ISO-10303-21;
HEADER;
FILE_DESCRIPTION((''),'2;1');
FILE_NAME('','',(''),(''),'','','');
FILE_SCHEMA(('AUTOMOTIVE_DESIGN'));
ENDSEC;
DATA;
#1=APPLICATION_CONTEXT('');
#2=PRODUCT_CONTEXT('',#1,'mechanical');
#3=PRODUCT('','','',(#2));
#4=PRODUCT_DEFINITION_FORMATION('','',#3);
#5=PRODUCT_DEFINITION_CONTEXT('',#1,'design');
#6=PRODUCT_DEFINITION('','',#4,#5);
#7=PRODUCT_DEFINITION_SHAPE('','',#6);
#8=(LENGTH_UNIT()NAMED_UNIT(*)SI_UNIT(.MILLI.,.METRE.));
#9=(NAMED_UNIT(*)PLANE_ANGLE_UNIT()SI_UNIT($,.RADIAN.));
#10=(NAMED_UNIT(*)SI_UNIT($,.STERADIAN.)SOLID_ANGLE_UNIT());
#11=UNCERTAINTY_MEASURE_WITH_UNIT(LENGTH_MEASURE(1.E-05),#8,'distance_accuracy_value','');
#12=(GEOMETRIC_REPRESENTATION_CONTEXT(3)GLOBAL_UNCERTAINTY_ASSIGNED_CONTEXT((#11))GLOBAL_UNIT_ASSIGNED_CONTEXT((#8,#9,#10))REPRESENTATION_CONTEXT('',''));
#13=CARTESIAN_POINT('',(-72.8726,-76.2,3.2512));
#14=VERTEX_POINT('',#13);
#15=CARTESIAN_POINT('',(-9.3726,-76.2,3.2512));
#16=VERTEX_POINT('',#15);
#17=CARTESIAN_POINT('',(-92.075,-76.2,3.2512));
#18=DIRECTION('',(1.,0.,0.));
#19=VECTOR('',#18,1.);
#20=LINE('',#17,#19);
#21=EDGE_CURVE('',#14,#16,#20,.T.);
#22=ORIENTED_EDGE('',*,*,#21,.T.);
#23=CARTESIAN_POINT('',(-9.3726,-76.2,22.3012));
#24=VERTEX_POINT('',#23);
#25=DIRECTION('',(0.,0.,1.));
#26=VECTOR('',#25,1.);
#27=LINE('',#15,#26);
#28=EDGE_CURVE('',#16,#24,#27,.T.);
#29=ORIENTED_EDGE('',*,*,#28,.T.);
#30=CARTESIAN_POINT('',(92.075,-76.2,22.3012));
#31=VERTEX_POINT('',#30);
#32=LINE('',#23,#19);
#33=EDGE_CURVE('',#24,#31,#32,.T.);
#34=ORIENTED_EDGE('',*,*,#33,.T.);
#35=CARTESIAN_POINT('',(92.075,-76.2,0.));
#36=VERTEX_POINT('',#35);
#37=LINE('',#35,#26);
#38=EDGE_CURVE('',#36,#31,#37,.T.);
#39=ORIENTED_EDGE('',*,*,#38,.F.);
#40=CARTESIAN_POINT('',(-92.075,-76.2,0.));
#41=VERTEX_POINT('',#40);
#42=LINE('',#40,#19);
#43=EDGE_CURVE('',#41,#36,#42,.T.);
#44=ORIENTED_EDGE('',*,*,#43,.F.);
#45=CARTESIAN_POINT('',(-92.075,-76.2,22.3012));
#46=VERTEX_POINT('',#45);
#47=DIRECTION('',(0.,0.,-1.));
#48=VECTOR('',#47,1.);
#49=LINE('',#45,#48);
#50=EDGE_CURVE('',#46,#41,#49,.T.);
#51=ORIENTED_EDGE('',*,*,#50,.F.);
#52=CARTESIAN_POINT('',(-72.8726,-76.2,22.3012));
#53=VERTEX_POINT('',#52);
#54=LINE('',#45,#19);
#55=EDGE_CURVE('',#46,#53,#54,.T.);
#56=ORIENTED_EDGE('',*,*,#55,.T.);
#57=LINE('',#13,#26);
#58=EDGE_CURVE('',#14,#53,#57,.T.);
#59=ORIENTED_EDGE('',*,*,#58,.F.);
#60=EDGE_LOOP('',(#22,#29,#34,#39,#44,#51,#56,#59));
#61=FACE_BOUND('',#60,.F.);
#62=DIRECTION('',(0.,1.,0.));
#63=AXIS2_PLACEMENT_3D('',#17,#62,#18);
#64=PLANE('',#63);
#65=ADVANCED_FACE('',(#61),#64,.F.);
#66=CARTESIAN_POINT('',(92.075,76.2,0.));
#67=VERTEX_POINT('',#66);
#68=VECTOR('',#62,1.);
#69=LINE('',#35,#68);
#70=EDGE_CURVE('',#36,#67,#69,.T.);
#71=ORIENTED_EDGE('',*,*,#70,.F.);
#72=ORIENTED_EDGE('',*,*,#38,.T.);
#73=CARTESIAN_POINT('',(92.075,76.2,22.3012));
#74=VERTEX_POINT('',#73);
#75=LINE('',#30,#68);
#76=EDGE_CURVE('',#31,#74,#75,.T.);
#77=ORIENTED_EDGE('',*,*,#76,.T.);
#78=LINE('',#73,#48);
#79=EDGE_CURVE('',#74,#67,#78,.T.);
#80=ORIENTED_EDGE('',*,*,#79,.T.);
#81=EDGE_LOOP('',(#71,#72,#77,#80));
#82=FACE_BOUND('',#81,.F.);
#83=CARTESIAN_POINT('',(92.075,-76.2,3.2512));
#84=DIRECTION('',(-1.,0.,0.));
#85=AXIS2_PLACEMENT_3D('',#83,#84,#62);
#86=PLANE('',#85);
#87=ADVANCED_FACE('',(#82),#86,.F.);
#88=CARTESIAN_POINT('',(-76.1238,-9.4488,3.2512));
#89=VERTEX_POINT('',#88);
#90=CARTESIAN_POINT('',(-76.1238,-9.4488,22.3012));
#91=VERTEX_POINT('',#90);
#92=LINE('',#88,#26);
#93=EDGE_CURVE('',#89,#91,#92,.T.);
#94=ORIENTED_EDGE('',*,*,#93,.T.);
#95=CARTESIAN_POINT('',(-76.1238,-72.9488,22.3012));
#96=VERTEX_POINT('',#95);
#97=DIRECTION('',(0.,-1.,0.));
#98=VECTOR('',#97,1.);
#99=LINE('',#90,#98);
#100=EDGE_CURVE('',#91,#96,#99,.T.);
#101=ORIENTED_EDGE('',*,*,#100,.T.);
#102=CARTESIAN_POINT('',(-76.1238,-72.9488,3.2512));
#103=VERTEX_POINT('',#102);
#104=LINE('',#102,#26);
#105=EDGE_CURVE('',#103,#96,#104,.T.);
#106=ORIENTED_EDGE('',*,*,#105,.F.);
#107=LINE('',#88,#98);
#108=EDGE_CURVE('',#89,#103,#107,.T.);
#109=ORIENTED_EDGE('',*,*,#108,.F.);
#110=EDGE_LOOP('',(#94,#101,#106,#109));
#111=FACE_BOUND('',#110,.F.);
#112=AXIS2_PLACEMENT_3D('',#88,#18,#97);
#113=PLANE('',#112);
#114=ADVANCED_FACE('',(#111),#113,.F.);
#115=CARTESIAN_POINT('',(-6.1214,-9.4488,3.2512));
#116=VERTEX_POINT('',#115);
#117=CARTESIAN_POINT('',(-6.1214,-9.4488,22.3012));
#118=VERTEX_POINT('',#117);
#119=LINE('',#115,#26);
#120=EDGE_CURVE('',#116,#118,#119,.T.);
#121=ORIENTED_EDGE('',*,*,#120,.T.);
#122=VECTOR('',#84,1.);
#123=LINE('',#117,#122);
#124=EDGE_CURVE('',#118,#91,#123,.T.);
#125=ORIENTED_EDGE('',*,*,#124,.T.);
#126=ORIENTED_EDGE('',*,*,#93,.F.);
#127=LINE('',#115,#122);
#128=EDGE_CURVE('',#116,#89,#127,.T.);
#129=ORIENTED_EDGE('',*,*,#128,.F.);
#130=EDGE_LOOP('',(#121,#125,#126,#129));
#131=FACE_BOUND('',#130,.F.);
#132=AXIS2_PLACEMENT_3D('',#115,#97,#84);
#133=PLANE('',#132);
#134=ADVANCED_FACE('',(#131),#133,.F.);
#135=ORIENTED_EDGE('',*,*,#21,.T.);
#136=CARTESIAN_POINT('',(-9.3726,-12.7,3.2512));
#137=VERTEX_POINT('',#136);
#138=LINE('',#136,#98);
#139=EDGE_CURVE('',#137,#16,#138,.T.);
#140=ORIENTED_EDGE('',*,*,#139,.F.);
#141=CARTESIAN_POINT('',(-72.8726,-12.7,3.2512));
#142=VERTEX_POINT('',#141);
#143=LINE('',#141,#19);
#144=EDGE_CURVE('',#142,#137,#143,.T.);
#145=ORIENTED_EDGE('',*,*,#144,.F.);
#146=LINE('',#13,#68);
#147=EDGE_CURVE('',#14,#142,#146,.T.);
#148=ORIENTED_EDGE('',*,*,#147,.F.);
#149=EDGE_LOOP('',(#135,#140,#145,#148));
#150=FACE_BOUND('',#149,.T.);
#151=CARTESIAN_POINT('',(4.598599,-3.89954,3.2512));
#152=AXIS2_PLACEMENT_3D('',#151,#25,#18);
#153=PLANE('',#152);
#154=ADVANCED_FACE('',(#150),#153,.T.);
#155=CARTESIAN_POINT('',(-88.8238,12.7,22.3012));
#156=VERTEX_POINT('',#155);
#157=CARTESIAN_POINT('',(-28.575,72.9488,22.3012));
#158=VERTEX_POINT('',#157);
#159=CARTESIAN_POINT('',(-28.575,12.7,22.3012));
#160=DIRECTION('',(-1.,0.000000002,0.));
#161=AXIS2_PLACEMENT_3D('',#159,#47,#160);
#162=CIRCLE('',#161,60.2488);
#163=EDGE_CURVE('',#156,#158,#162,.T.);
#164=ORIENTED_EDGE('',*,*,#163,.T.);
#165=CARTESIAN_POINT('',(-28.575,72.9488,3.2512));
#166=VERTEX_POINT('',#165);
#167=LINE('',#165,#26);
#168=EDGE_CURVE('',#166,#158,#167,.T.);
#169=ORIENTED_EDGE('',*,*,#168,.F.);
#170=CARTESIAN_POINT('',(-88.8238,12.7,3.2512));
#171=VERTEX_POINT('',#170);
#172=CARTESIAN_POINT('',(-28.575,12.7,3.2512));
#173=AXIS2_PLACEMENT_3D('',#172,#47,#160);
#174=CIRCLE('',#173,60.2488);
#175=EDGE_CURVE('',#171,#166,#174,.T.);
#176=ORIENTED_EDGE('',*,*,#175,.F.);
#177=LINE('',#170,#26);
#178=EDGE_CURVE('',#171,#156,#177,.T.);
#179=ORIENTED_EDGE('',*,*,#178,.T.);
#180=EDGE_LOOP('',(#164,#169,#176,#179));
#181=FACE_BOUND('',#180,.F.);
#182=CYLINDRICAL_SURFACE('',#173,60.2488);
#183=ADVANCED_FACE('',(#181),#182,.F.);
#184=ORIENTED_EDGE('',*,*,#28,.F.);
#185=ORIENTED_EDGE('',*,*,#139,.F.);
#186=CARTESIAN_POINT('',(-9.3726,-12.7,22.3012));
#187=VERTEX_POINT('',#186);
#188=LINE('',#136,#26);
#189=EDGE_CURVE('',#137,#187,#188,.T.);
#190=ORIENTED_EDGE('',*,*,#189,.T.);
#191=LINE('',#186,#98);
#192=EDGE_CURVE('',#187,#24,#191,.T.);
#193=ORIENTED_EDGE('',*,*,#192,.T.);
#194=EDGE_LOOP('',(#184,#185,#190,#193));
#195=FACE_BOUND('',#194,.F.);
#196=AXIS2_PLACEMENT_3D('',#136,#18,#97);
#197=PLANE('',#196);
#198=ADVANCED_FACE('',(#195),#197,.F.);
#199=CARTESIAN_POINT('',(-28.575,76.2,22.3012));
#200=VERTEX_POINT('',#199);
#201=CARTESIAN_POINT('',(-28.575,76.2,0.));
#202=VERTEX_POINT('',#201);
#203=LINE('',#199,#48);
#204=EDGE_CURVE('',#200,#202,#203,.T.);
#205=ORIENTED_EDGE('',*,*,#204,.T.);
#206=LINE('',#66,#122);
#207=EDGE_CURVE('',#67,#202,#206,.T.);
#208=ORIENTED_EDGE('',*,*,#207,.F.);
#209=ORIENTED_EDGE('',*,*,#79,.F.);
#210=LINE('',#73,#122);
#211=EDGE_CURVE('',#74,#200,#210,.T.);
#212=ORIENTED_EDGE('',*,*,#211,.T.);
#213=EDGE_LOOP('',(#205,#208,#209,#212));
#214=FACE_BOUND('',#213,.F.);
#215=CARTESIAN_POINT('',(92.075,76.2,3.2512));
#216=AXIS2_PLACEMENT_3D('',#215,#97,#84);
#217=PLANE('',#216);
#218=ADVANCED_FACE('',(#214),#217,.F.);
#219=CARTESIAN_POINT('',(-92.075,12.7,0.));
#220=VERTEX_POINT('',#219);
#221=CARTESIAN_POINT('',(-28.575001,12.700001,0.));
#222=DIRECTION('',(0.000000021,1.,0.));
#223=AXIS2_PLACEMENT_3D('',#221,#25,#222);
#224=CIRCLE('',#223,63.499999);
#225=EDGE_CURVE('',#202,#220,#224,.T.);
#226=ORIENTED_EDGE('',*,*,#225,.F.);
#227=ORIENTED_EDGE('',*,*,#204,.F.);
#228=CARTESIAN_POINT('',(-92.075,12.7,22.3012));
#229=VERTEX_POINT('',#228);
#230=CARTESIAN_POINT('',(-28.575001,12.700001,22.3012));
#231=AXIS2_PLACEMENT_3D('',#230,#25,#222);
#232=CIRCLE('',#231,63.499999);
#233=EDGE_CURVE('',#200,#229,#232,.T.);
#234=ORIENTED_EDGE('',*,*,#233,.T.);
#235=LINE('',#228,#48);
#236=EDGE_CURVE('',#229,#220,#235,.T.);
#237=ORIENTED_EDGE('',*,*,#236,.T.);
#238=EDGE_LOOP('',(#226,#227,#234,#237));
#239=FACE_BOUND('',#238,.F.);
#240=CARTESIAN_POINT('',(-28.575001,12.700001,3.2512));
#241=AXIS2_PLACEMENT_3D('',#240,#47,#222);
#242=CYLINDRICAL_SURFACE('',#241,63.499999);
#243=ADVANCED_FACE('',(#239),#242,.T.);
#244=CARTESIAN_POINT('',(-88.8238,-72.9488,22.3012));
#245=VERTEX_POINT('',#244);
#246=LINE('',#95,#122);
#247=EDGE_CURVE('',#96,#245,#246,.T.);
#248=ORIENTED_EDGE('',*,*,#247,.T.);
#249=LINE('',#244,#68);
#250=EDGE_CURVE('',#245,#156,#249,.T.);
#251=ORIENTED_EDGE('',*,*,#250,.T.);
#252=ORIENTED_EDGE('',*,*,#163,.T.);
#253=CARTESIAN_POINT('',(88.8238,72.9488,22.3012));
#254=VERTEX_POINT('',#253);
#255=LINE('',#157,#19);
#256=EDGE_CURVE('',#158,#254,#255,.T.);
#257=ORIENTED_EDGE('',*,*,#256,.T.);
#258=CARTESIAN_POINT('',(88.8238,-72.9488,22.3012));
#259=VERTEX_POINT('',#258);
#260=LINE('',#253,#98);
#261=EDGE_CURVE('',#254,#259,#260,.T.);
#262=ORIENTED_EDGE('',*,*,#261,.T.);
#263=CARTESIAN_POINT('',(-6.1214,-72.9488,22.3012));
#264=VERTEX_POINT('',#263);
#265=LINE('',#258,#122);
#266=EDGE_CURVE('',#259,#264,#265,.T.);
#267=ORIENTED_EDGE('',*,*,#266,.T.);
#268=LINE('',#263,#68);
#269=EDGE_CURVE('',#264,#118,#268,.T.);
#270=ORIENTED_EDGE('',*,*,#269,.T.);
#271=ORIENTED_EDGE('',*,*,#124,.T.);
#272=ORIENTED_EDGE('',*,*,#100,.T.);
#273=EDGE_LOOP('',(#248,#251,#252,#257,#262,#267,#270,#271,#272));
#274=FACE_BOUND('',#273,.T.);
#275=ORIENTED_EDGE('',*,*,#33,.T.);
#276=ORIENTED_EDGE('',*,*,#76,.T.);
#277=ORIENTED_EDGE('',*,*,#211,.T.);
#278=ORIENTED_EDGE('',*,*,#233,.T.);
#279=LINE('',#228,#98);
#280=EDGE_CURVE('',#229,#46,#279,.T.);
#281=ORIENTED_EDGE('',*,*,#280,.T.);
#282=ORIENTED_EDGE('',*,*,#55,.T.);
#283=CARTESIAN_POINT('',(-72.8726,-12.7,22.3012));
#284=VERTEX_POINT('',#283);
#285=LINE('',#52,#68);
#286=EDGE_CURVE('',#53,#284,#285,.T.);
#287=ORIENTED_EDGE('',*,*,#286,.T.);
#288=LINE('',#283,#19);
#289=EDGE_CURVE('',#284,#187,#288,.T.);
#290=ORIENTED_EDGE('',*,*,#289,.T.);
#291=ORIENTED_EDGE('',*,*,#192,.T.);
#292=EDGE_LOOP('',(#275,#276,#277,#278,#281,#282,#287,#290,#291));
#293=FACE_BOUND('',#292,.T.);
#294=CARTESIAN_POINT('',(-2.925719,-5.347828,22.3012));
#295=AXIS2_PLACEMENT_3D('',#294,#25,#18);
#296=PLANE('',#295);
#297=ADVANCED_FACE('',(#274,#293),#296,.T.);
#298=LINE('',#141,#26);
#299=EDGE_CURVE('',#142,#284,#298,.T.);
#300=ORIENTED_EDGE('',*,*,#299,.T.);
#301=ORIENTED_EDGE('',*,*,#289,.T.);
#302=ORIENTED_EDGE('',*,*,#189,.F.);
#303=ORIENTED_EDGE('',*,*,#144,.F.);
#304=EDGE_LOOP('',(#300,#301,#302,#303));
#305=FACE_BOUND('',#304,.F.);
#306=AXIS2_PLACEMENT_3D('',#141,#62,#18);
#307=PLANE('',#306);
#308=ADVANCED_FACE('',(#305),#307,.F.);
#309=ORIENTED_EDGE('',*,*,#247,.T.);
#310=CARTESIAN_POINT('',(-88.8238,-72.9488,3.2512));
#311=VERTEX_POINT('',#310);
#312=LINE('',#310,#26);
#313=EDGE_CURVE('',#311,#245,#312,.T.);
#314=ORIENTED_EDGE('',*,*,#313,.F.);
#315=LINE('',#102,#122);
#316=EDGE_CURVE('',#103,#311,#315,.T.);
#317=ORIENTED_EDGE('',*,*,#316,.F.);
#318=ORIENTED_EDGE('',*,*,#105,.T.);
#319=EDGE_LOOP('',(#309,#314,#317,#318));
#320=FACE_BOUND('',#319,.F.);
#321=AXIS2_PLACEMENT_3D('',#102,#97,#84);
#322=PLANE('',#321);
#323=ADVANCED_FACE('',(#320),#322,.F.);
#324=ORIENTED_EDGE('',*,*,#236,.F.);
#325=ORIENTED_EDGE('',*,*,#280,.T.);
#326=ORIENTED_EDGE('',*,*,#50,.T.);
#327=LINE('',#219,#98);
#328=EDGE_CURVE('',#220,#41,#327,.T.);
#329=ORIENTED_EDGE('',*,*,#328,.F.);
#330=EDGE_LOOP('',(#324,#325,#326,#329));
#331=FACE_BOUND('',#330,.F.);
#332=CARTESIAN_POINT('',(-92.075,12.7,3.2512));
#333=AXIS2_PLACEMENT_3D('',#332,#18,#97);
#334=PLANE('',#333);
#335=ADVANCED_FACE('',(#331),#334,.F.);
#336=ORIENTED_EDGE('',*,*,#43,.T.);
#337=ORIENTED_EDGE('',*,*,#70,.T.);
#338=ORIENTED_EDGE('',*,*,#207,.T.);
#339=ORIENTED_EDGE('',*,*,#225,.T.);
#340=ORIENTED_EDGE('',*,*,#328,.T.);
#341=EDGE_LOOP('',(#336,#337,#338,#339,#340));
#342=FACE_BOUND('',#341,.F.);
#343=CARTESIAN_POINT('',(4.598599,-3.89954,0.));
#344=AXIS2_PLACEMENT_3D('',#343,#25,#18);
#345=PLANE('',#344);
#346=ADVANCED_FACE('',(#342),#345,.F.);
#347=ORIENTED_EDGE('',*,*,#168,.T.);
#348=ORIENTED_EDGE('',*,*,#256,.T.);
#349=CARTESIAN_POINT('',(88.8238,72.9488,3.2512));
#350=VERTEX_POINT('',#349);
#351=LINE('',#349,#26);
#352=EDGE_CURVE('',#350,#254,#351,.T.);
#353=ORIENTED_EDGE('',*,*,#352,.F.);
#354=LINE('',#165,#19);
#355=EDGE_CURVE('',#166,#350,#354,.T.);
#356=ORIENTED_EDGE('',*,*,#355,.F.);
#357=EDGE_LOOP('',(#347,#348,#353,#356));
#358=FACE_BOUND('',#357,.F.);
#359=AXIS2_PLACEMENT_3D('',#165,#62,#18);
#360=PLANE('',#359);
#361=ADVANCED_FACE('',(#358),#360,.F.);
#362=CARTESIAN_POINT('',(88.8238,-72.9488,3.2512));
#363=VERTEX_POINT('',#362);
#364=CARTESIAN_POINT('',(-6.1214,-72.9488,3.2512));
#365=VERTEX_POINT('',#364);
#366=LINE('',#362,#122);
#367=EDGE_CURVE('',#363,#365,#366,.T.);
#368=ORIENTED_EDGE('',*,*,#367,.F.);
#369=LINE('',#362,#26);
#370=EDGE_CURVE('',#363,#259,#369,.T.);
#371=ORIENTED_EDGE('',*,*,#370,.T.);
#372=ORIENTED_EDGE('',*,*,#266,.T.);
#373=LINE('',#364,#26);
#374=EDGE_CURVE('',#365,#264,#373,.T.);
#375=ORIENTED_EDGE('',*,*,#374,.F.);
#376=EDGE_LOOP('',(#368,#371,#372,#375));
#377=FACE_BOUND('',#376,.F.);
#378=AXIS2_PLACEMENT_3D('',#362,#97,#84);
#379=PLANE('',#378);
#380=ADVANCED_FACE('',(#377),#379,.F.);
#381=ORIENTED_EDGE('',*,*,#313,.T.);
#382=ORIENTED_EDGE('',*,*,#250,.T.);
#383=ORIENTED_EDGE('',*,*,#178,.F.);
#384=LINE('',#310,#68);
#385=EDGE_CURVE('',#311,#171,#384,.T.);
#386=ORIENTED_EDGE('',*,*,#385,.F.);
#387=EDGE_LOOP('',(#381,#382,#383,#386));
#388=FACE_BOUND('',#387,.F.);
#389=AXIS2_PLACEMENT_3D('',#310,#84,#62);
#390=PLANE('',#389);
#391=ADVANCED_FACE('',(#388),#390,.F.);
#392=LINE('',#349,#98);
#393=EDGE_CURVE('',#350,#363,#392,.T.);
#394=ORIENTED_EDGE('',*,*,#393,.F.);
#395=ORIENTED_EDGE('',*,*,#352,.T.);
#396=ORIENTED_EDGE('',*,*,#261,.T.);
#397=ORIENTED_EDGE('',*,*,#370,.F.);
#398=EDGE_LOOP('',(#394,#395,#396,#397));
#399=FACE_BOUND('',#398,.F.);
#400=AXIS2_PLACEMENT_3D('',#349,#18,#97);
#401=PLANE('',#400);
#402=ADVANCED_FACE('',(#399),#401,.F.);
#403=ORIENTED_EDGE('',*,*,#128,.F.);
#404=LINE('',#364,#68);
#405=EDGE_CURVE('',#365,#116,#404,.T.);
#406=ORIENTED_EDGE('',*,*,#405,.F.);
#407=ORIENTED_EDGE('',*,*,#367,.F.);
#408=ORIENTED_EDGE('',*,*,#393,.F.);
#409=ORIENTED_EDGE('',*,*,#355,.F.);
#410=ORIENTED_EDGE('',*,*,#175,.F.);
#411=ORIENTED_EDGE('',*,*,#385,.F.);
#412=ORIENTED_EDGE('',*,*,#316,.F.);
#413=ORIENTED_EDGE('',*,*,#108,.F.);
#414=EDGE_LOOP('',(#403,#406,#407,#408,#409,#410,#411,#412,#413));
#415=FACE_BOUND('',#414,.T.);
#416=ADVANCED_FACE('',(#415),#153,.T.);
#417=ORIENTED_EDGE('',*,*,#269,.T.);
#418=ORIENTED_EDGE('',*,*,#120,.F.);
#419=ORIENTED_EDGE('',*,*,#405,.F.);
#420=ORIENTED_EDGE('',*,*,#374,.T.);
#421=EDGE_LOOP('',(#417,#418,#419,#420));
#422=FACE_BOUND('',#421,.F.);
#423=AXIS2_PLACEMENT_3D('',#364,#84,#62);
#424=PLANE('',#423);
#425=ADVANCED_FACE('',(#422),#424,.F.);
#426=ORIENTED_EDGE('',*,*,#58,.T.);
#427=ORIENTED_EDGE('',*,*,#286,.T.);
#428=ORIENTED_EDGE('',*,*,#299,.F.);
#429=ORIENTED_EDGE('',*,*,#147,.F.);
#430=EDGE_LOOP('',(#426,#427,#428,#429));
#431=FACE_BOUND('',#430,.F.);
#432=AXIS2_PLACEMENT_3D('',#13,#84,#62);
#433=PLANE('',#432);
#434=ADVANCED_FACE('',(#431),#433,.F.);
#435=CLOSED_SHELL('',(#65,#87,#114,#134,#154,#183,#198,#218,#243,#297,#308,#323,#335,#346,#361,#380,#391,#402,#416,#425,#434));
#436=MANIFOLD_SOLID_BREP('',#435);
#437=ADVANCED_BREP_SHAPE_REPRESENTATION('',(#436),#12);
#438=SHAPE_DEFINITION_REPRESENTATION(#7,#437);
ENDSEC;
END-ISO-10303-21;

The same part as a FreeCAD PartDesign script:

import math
import FreeCAD as App
import Part
import Sketcher
from FreeCAD import Vector
Q = App.Units.Quantity

doc = App.newDocument("Part")
body = doc.addObject("PartDesign::Body", "Body")

# Sketch on XY plane
sketch1 = body.newObject("Sketcher::SketchObject", "Sketch")
sketch1.AttachmentSupport = (doc.getObject("XY_Plane"), [""])
sketch1.MapMode = "FlatFace"
sketch1.addGeometry([
    Part.LineSegment(Vector(92, 76, 0), Vector(-29, 76, 0)),  # 0
    Part.ArcOfCircle(Part.Circle(Vector(-29, 13, 0), Vector(0, 0, 1), 63), math.radians(90), math.radians(180)),  # 1
    Part.LineSegment(Vector(-92, 13, 0), Vector(-92, -76, 0)),  # 2
    Part.LineSegment(Vector(-92, -76, 0), Vector(92, -76, 0)),  # 3
    Part.LineSegment(Vector(92, -76, 0), Vector(92, 76, 0)),  # 4
], False)
sketch1.addConstraint([
    Sketcher.Constraint("Tangent", 0, 2, 1, 1),
    Sketcher.Constraint("Tangent", 1, 2, 2, 1),
    Sketcher.Constraint("Coincident", 2, 2, 3, 1),
    Sketcher.Constraint("Coincident", 3, 2, 4, 1),
    Sketcher.Constraint("Coincident", 4, 2, 0, 1),
    Sketcher.Constraint("Horizontal", 0),
    Sketcher.Constraint("Vertical", 2),
    Sketcher.Constraint("Horizontal", 3),
    Sketcher.Constraint("Vertical", 4),
    Sketcher.Constraint("Symmetric", 2, 2, 4, 2, -1, 1),
    Sketcher.Constraint("Radius", 1, Q("2.4999999 in")),
    Sketcher.Constraint("DistanceY", 4, 1, 4, 2, Q("6 in")),
    Sketcher.Constraint("DistanceX", 0, 2, 0, 1, Q("4.75 in")),
])
pad1 = body.newObject("PartDesign::Pad", "Pad")
pad1.Profile = sketch1
pad1.Length = Q("0.128 in")

# Sketch on XY plane
sketch2 = body.newObject("Sketcher::SketchObject", "Sketch001")
sketch2.AttachmentSupport = (doc.getObject("XY_Plane"), [""])
sketch2.MapMode = "FlatFace"
sketch2.AttachmentOffset = App.Placement(Vector(0, 0, 0.128 * 25.4), App.Rotation())
sketch2.addGeometry([
    Part.LineSegment(Vector(-73, -76, 0), Vector(-73, -13, 0)),  # 0
    Part.LineSegment(Vector(-73, -13, 0), Vector(-9, -13, 0)),  # 1
    Part.LineSegment(Vector(-9, -13, 0), Vector(-9, -76, 0)),  # 2
    Part.LineSegment(Vector(-9, -76, 0), Vector(92, -76, 0)),  # 3
    Part.LineSegment(Vector(92, -76, 0), Vector(92, 76, 0)),  # 4
    Part.LineSegment(Vector(92, 76, 0), Vector(-29, 76, 0)),  # 5
    Part.ArcOfCircle(Part.Circle(Vector(-29, 13, 0), Vector(0, 0, 1), 63), math.radians(90), math.radians(180)),  # 6
    Part.LineSegment(Vector(-92, 13, 0), Vector(-92, -76, 0)),  # 7
    Part.LineSegment(Vector(-92, -76, 0), Vector(-73, -76, 0)),  # 8
    Part.ArcOfCircle(Part.Circle(Vector(-29, 13, 0), Vector(0, 0, 1), 60), math.radians(90), math.radians(180)),  # 9
    Part.LineSegment(Vector(-29, 73, 0), Vector(89, 73, 0)),  # 10
    Part.LineSegment(Vector(89, 73, 0), Vector(89, -73, 0)),  # 11
    Part.LineSegment(Vector(89, -73, 0), Vector(-6, -73, 0)),  # 12
    Part.LineSegment(Vector(-6, -73, 0), Vector(-6, -9, 0)),  # 13
    Part.LineSegment(Vector(-6, -9, 0), Vector(-76, -9, 0)),  # 14
    Part.LineSegment(Vector(-76, -9, 0), Vector(-76, -73, 0)),  # 15
    Part.LineSegment(Vector(-76, -73, 0), Vector(-89, -73, 0)),  # 16
    Part.LineSegment(Vector(-89, -73, 0), Vector(-89, 13, 0)),  # 17
], False)
sketch2.addConstraint([
    Sketcher.Constraint("Coincident", 0, 2, 1, 1),
    Sketcher.Constraint("Coincident", 1, 2, 2, 1),
    Sketcher.Constraint("Coincident", 2, 2, 3, 1),
    Sketcher.Constraint("Coincident", 3, 2, 4, 1),
    Sketcher.Constraint("Coincident", 4, 2, 5, 1),
    Sketcher.Constraint("Tangent", 5, 2, 6, 1),
    Sketcher.Constraint("Tangent", 6, 2, 7, 1),
    Sketcher.Constraint("Coincident", 7, 2, 8, 1),
    Sketcher.Constraint("Coincident", 8, 2, 0, 1),
    Sketcher.Constraint("Tangent", 9, 1, 10, 1),
    Sketcher.Constraint("Coincident", 10, 2, 11, 1),
    Sketcher.Constraint("Coincident", 11, 2, 12, 1),
    Sketcher.Constraint("Coincident", 12, 2, 13, 1),
    Sketcher.Constraint("Coincident", 13, 2, 14, 1),
    Sketcher.Constraint("Coincident", 14, 2, 15, 1),
    Sketcher.Constraint("Coincident", 15, 2, 16, 1),
    Sketcher.Constraint("Coincident", 16, 2, 17, 1),
    Sketcher.Constraint("Tangent", 17, 2, 9, 2),
    Sketcher.Constraint("Vertical", 0),
    Sketcher.Constraint("Horizontal", 1),
    Sketcher.Constraint("Vertical", 2),
    Sketcher.Constraint("Horizontal", 3),
    Sketcher.Constraint("Vertical", 4),
    Sketcher.Constraint("Horizontal", 5),
    Sketcher.Constraint("Vertical", 7),
    Sketcher.Constraint("Horizontal", 8),
    Sketcher.Constraint("Horizontal", 10),
    Sketcher.Constraint("Vertical", 11),
    Sketcher.Constraint("Horizontal", 12),
    Sketcher.Constraint("Vertical", 13),
    Sketcher.Constraint("Horizontal", 14),
    Sketcher.Constraint("Vertical", 15),
    Sketcher.Constraint("Horizontal", 16),
    Sketcher.Constraint("Vertical", 17),
    Sketcher.Constraint("Coincident", 9, 3, 6, 3),
    Sketcher.Constraint("Symmetric", 4, 2, 7, 2, -1, 1),
    Sketcher.Constraint("Symmetric", 10, 2, 16, 2, -1, 1),
    Sketcher.Constraint("Horizontal", 3, 2, 7, 2),
    Sketcher.Constraint("Horizontal", 12, 2, 15, 2),
    Sketcher.Constraint("Equal", 1, 0),
    Sketcher.Constraint("Equal", 2, 13),
    Sketcher.Constraint("Radius", 6, Q("2.4999999 in")),
    Sketcher.Constraint("DistanceY", 4, 1, 4, 2, Q("6 in")),
    Sketcher.Constraint("DistanceX", 1, 1, 1, 2, Q("2.5 in")),
    Sketcher.Constraint("DistanceX", 16, 2, 16, 1, Q("0.5 in")),
    Sketcher.Constraint("Radius", 9, Q("2.372 in")),
    Sketcher.Constraint("DistanceX", 5, 2, 5, 1, Q("4.75 in")),
    Sketcher.Constraint("DistanceX", 3, 1, 3, 2, Q("3.994 in")),
    Sketcher.Constraint("DistanceX", 12, 2, 12, 1, Q("3.738 in")),
])
pad2 = body.newObject("PartDesign::Pad", "Pad001")
pad2.Profile = sketch2
pad2.Length = Q("0.75 in")

doc.recompute()
